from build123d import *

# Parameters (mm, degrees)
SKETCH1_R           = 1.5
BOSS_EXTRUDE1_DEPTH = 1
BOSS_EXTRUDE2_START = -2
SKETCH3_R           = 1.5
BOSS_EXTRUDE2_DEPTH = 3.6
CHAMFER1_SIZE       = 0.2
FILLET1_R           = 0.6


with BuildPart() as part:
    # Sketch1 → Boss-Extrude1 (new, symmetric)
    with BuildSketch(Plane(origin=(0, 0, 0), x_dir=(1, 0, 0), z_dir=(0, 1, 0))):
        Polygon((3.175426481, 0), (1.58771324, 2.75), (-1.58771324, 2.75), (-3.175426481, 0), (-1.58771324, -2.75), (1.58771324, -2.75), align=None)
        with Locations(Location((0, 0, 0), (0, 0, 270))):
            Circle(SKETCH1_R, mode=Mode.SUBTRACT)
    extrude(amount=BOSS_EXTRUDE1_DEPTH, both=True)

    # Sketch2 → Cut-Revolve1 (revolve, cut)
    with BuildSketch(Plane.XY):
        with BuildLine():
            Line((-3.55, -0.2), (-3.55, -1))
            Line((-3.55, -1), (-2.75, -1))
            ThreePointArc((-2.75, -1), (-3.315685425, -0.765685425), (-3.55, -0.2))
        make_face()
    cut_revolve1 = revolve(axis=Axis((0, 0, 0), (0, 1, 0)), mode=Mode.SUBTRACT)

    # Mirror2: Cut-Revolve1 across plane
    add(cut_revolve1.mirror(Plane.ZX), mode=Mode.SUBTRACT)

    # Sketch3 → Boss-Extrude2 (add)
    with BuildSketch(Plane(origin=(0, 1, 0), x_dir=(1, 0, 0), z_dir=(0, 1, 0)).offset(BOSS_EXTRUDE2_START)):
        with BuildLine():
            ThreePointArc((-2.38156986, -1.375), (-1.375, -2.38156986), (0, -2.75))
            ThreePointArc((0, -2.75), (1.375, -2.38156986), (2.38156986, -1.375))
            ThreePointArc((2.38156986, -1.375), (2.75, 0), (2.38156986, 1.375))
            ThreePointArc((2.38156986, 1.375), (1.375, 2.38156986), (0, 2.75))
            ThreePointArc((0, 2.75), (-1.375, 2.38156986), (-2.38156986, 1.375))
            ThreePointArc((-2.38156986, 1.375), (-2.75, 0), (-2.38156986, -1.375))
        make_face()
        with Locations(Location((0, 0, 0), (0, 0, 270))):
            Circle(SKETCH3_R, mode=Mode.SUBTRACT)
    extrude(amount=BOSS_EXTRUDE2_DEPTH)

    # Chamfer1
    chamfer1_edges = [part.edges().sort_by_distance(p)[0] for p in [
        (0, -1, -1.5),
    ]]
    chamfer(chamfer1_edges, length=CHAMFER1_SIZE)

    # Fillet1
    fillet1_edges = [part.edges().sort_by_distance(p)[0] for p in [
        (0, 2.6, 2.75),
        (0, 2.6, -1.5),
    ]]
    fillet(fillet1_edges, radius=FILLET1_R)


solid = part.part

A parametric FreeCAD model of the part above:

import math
import FreeCAD as App
import Part
import Sketcher
from FreeCAD import Vector
Q = App.Units.Quantity


def edges_at(feature, points):
    """Names of the edges that pass closest to the given points."""
    edges = feature.Shape.Edges
    near = lambda p: min(range(len(edges)), key=lambda i: edges[i].distToShape(Part.Vertex(*p))[0])
    return sorted({f"Edge{near(p) + 1}" for p in points})

doc = App.newDocument("Part")
params = doc.addObject("Spreadsheet::Sheet", "Params")
for row, (alias, value) in enumerate([
    ("sketch1_diameter", "3 mm"),
    ("pad1_length", "2 mm"),
    ("sketch2_radius", "0.8 mm"),
    ("groove_angle", "360 deg"),
    ("sketch3_diameter", "3 mm"),
    ("sketch3_radius", "2.75 mm"),
    ("pad2_length", "3.6 mm"),
    ("chamfer_size", "0.2 mm"),
    ("fillet_radius", "0.6 mm"),
], start=1):
    params.set(f"A{row}", alias)
    params.set(f"B{row}", "=" + value)
    params.setAlias(f"B{row}", alias)

body = doc.addObject("PartDesign::Body", "Body")

sketch1 = body.newObject("Sketcher::SketchObject", "Sketch")
sketch1.AttachmentSupport = (doc.getObject("XZ_Plane"), [""])
sketch1.MapMode = "FlatFace"
sketch1.addGeometry([
    Part.LineSegment(Vector(3.2, 0, 0), Vector(1.6, -2.8, 0)),
    Part.LineSegment(Vector(1.6, -2.8, 0), Vector(-1.6, -2.8, 0)),
    Part.LineSegment(Vector(-1.6, -2.8, 0), Vector(-3.2, 0, 0)),
    Part.LineSegment(Vector(-3.2, 0, 0), Vector(-1.6, 2.8, 0)),
    Part.LineSegment(Vector(-1.6, 2.8, 0), Vector(1.6, 2.8, 0)),
    Part.LineSegment(Vector(1.6, 2.8, 0), Vector(3.2, 0, 0)),
    Part.Circle(Vector(0, 0, 0), Vector(0, 0, 1), 1.5),
], False)
sketch1.addConstraint([
    Sketcher.Constraint("Coincident", 0, 2, 1, 1),
    Sketcher.Constraint("Coincident", 1, 2, 2, 1),
    Sketcher.Constraint("Coincident", 2, 2, 3, 1),
    Sketcher.Constraint("Coincident", 3, 2, 4, 1),
    Sketcher.Constraint("Coincident", 4, 2, 5, 1),
    Sketcher.Constraint("Coincident", 5, 2, 0, 1),
    Sketcher.Constraint("Horizontal", 1),
    Sketcher.Constraint("Horizontal", 4),
    Sketcher.Constraint("Coincident", 6, 3, -1, 1),
    Sketcher.Constraint("Symmetric", 0, 2, 3, 2, -1, 1),
    Sketcher.Constraint("Symmetric", 2, 2, 5, 2, -1, 1),
    Sketcher.Constraint("PointOnObject", 2, 2, -1),
    Sketcher.Constraint("Parallel", 2, 5),
    Sketcher.Constraint("Vertical", 1, 2, 3, 2),
    Sketcher.Constraint("Diameter", 6, Q("3 mm")),
    Sketcher.Constraint("Angle", 0, Q("-120 deg")),
    Sketcher.Constraint("DistanceY", 1, 2, 3, 2, Q("5.5 mm")),
    Sketcher.Constraint("DistanceX", 1, 2, 1, 1, Q("3.175426 mm")),
])
sketch1.setExpression("Constraints[14]", "Params.sketch1_diameter")
pad1 = body.newObject("PartDesign::Pad", "Pad")
pad1.Profile = sketch1
pad1.setExpression("Length", "Params.pad1_length")
pad1.Midplane = True

sketch2 = body.newObject("Sketcher::SketchObject", "Sketch001")
sketch2.AttachmentSupport = (doc.getObject("XY_Plane"), [""])
sketch2.MapMode = "FlatFace"
sketch2.addGeometry([
    Part.LineSegment(Vector(-3.5, -0.2, 0), Vector(-3.5, -1, 0)),
    Part.LineSegment(Vector(-3.5, -1, 0), Vector(-2.8, -1, 0)),
    Part.ArcOfCircle(Part.Circle(Vector(-2.8, -0.2, 0), Vector(0, 0, 1), 0.8), math.radians(180), math.radians(270)),
], False)
sketch2.addConstraint([
    Sketcher.Constraint("Coincident", 0, 2, 1, 1),
    Sketcher.Constraint("Tangent", 1, 2, 2, 2),
    Sketcher.Constraint("Tangent", 2, 1, 0, 1),
    Sketcher.Constraint("Vertical", 0),
    Sketcher.Constraint("Horizontal", 1),
    Sketcher.Constraint("Radius", 2, Q("0.8 mm")),
    Sketcher.Constraint("DistanceY", 0, 2, -1, 1, Q("1 mm")),
    Sketcher.Constraint("DistanceX", 2, 3, -1, 1, Q("2.75 mm")),
])
sketch2.setExpression("Constraints[5]", "Params.sketch2_radius")
groove = body.newObject("PartDesign::Groove", "Groove")
groove.Profile = sketch2
groove.ReferenceAxis = (sketch2, ["V_Axis"])
groove.setExpression("Angle", "Params.groove_angle")
doc.recompute()

mirrored = body.newObject("PartDesign::Mirrored", "Mirrored")
mirrored.Originals = [groove]
mirrored.MirrorPlane = (doc.getObject("XZ_Plane"), [""])
body.Tip = mirrored

sketch3 = body.newObject("Sketcher::SketchObject", "Sketch002")
sketch3.AttachmentSupport = (doc.getObject("XZ_Plane"), [""])
sketch3.MapMode = "FlatFace"
sketch3.AttachmentOffset = App.Placement(Vector(0, 0, 1), App.Rotation())
sketch3.addGeometry([
    Part.ArcOfCircle(Part.Circle(Vector(0, 0, 0), Vector(0, 0, 1), 2.8), math.radians(90), math.radians(150)),
    Part.ArcOfCircle(Part.Circle(Vector(0, 0, 0), Vector(0, 0, 1), 2.8), math.radians(30), math.radians(90)),
    Part.ArcOfCircle(Part.Circle(Vector(0, 0, 0), Vector(0, 0, 1), 2.7), math.radians(-30), math.radians(30)),
    Part.ArcOfCircle(Part.Circle(Vector(0, 0, 0), Vector(0, 0, 1), 2.8), math.radians(-90), math.radians(-30)),
    Part.ArcOfCircle(Part.Circle(Vector(0, 0, 0), Vector(0, 0, 1), 2.8), math.radians(-150), math.radians(-90)),
    Part.ArcOfCircle(Part.Circle(Vector(0, 0, 0), Vector(0, 0, 1), 2.7), math.radians(150), math.radians(210)),
    Part.Circle(Vector(0, 0, 0), Vector(0, 0, 1), 1.5),
], False)
sketch3.addConstraint([
    Sketcher.Constraint("Tangent", 0, 1, 1, 2),
    Sketcher.Constraint("Tangent", 1, 1, 2, 2),
    Sketcher.Constraint("Tangent", 2, 1, 3, 2),
    Sketcher.Constraint("Tangent", 3, 1, 4, 2),
    Sketcher.Constraint("Tangent", 4, 1, 5, 2),
    Sketcher.Constraint("Tangent", 5, 1, 0, 2),
    Sketcher.Constraint("Coincident", 0, 3, -1, 1),
    Sketcher.Constraint("Coincident", 2, 3, -1, 1),
    Sketcher.Constraint("Coincident", 6, 3, -1, 1),
    Sketcher.Constraint("Equal", 2, 3),
    Sketcher.Constraint("PointOnObject", 0, 1, -2),
    Sketcher.Constraint("PointOnObject", 3, 1, -2),
    Sketcher.Constraint("Horizontal", 2, 1, 4, 1),
    Sketcher.Constraint("Horizontal", 1, 1, 5, 1),
    Sketcher.Constraint("Vertical", 1, 1, 2, 1),
    Sketcher.Constraint("Diameter", 6, Q("3 mm")),
    Sketcher.Constraint("Radius", 0, Q("2.75 mm")),
    Sketcher.Constraint("DistanceY", -1, 1, 1, 1, Q("1.375 mm")),
])
sketch3.setExpression("Constraints[15]", "Params.sketch3_diameter")
sketch3.setExpression("Constraints[16]", "Params.sketch3_radius")
pad2 = body.newObject("PartDesign::Pad", "Pad001")
pad2.Profile = sketch3
pad2.setExpression("Length", "Params.pad2_length")
pad2.Reversed = True
doc.recompute()

chamfer = body.newObject("PartDesign::Chamfer", "Chamfer")
chamfer.Base = (pad2, edges_at(pad2, [(0, -1, -1.5)]))
chamfer.setExpression("Size", "Params.chamfer_size")
doc.recompute()

fillet = body.newObject("PartDesign::Fillet", "Fillet")
fillet.Base = (chamfer, edges_at(chamfer, [(-1.375, 2.6, 2.382), (0, 2.6, -1.5)]))
fillet.setExpression("Radius", "Params.fillet_radius")

doc.recompute()
